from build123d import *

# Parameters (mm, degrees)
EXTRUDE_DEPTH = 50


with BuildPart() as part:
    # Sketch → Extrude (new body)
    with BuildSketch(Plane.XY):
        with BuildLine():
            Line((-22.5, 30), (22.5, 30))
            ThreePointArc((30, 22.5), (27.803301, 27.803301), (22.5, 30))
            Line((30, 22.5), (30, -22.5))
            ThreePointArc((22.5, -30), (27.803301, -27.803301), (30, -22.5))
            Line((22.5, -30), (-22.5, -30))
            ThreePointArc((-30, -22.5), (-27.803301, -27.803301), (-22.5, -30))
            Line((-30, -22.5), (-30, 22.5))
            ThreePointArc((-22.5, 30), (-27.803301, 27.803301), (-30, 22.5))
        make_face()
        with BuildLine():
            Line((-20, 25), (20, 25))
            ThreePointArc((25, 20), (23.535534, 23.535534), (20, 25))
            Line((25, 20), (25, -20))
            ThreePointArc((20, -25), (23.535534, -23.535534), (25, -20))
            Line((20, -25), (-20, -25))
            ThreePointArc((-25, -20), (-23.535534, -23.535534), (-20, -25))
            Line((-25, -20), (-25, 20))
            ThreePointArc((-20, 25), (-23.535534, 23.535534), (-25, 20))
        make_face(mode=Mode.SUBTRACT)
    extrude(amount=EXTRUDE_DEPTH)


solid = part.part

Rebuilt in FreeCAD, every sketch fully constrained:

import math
import FreeCAD as App
import Part
import Sketcher

V = App.Vector
Q = App.Units.Quantity

doc = App.newDocument("Part")
params = doc.addObject("Spreadsheet::Sheet", "Params")
for row, (alias, value) in enumerate([
    ("sketch1_radius", "5 mm"),
    ("sketch1_radius2", "7.5 mm"),
    ("sketch1_width", "45 mm"),
    ("sketch1_width2", "40 mm"),
    ("pad1_length", "50 mm"),
], start=1):
    params.set(f"A{row}", alias)
    params.set(f"B{row}", "=" + value)
    params.setAlias(f"B{row}", alias)

body = doc.addObject("PartDesign::Body", "Body")

# Sketch on XY plane
sketch1 = body.newObject("Sketcher::SketchObject", "Sketch")
sketch1.AttachmentSupport = (doc.getObject("XY_Plane"), [""])
sketch1.MapMode = "FlatFace"
sketch1.addGeometry([
    Part.LineSegment(V(22.5, 30, 0), V(-22.5, 30, 0)),  # 0
    Part.ArcOfCircle(Part.Circle(V(-22.5, 22.5, 0), V(0, 0, 1), 7.5), math.radians(90), math.radians(180)),  # 1
    Part.LineSegment(V(-30, 22.5, 0), V(-30, -22.5, 0)),  # 2
    Part.ArcOfCircle(Part.Circle(V(-22.5, -22.5, 0), V(0, 0, 1), 7.5), math.radians(180), math.radians(270)),  # 3
    Part.LineSegment(V(-22.5, -30, 0), V(22.5, -30, 0)),  # 4
    Part.ArcOfCircle(Part.Circle(V(22.5, -22.5, 0), V(0, 0, 1), 7.5), math.radians(-90), math.radians(0)),  # 5
    Part.LineSegment(V(30, -22.5, 0), V(30, 22.5, 0)),  # 6
    Part.ArcOfCircle(Part.Circle(V(22.5, 22.5, 0), V(0, 0, 1), 7.5), math.radians(0), math.radians(90)),  # 7
    Part.LineSegment(V(-20, 25, 0), V(20, 25, 0)),  # 8
    Part.ArcOfCircle(Part.Circle(V(20, 20, 0), V(0, 0, 1), 5), math.radians(0), math.radians(90)),  # 9
    Part.LineSegment(V(25, 20, 0), V(25, -20, 0)),  # 10
    Part.ArcOfCircle(Part.Circle(V(20, -20, 0), V(0, 0, 1), 5), math.radians(-90), math.radians(0)),  # 11
    Part.LineSegment(V(20, -25, 0), V(-20, -25, 0)),  # 12
    Part.ArcOfCircle(Part.Circle(V(-20, -20, 0), V(0, 0, 1), 5), math.radians(180), math.radians(270)),  # 13
    Part.LineSegment(V(-25, -20, 0), V(-25, 20, 0)),  # 14
    Part.ArcOfCircle(Part.Circle(V(-20, 20, 0), V(0, 0, 1), 5), math.radians(90), math.radians(180)),  # 15
], False)
sketch1.addConstraint([
    Sketcher.Constraint("Tangent", 0, 2, 1, 1),
    Sketcher.Constraint("Tangent", 1, 2, 2, 1),
    Sketcher.Constraint("Tangent", 2, 2, 3, 1),
    Sketcher.Constraint("Tangent", 3, 2, 4, 1),
    Sketcher.Constraint("Tangent", 4, 2, 5, 1),
    Sketcher.Constraint("Tangent", 5, 2, 6, 1),
    Sketcher.Constraint("Tangent", 6, 2, 7, 1),
    Sketcher.Constraint("Tangent", 7, 2, 0, 1),
    Sketcher.Constraint("Tangent", 8, 2, 9, 2),
    Sketcher.Constraint("Tangent", 9, 1, 10, 1),
    Sketcher.Constraint("Tangent", 10, 2, 11, 2),
    Sketcher.Constraint("Tangent", 11, 1, 12, 1),
    Sketcher.Constraint("Tangent", 12, 2, 13, 2),
    Sketcher.Constraint("Tangent", 13, 1, 14, 1),
    Sketcher.Constraint("Tangent", 14, 2, 15, 2),
    Sketcher.Constraint("Tangent", 15, 1, 8, 1),
    Sketcher.Constraint("Horizontal", 0),
    Sketcher.Constraint("Vertical", 2),
    Sketcher.Constraint("Horizontal", 4),
    Sketcher.Constraint("Vertical", 6),
    Sketcher.Constraint("Horizontal", 8),
    Sketcher.Constraint("Vertical", 10),
    Sketcher.Constraint("Horizontal", 12),
    Sketcher.Constraint("Vertical", 14),
    Sketcher.Constraint("Equal", 1, 3),
    Sketcher.Constraint("Equal", 3, 5),
    Sketcher.Constraint("Equal", 5, 7),
    Sketcher.Constraint("Equal", 9, 11),
    Sketcher.Constraint("Equal", 11, 13),
    Sketcher.Constraint("Equal", 13, 15),
    Sketcher.Constraint("Symmetric", 1, 3, 5, 3, -1, 1),
    Sketcher.Constraint("Symmetric", 9, 3, 13, 3, -1, 1),
    Sketcher.Constraint("Equal", 4, 2),
    Sketcher.Constraint("Equal", 12, 10),
    Sketcher.Constraint("Radius", 9, Q("5 mm")),
    Sketcher.Constraint("Radius", 1, Q("7.5 mm")),
    Sketcher.Constraint("DistanceX", 0, 2, 0, 1, Q("45 mm")),
    Sketcher.Constraint("DistanceX", 8, 1, 8, 2, Q("40 mm")),
])
sketch1.setExpression("Constraints[34]", "Params.sketch1_radius")
sketch1.setExpression("Constraints[35]", "Params.sketch1_radius2")
sketch1.setExpression("Constraints[36]", "Params.sketch1_width")
sketch1.setExpression("Constraints[37]", "Params.sketch1_width2")
pad1 = body.newObject("PartDesign::Pad", "Pad")
pad1.Profile = sketch1
pad1.setExpression("Length", "Params.pad1_length")

doc.recompute()
